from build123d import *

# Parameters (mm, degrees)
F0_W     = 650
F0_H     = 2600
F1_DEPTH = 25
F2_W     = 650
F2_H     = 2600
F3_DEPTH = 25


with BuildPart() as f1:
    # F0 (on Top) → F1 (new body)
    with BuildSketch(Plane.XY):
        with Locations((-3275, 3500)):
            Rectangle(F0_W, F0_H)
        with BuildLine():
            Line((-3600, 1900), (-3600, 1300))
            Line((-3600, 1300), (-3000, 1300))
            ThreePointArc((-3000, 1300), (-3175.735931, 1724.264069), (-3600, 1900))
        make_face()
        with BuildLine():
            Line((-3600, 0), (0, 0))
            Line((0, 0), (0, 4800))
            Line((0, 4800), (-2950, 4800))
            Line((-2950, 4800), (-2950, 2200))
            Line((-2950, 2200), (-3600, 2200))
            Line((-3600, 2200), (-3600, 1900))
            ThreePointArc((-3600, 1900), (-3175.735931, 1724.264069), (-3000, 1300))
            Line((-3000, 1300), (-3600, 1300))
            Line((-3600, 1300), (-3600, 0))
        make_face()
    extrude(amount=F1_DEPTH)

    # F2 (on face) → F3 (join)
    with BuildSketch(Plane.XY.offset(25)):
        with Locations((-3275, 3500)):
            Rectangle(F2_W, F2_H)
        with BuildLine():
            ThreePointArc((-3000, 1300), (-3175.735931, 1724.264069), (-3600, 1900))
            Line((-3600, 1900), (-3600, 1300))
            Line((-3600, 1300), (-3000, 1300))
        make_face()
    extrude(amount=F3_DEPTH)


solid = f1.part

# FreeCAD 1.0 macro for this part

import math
import FreeCAD as App
import Part
import Sketcher

doc = App.newDocument("Part")
body = doc.addObject("PartDesign::Body", "Body")

sketch1 = body.newObject("Sketcher::SketchObject", "Sketch")
sketch1.AttachmentSupport = (doc.getObject("XY_Plane"), [""])
sketch1.MapMode = "FlatFace"
sketch1.addGeometry([
    Part.LineSegment(App.Vector(-3600, 4800, 0), App.Vector(-3600, 0, 0)),
    Part.LineSegment(App.Vector(-3600, 0, 0), App.Vector(0, 0, 0)),
    Part.LineSegment(App.Vector(0, 0, 0), App.Vector(0, 4800, 0)),
    Part.LineSegment(App.Vector(0, 4800, 0), App.Vector(-3600, 4800, 0)),
], False)
sketch1.addConstraint([
    Sketcher.Constraint("Coincident", 0, 2, 1, 1),
    Sketcher.Constraint("Coincident", 1, 2, 2, 1),
    Sketcher.Constraint("Coincident", 2, 2, 3, 1),
    Sketcher.Constraint("Coincident", 3, 2, 0, 1),
    Sketcher.Constraint("Vertical", 0),
    Sketcher.Constraint("Horizontal", 1),
    Sketcher.Constraint("Vertical", 2),
    Sketcher.Constraint("Horizontal", 3),
    Sketcher.Constraint("Coincident", 1, 2, -1, 1),
    Sketcher.Constraint("DistanceX", 1, 1, 1, 2, 3600.0),
    Sketcher.Constraint("DistanceY", 0, 2, 0, 1, 4800.0),
])
pad1 = body.newObject("PartDesign::Pad", "Pad")
pad1.Profile = sketch1
pad1.Length = 25

sketch2 = body.newObject("Sketcher::SketchObject", "Sketch001")
sketch2.AttachmentSupport = (doc.getObject("XY_Plane"), [""])
sketch2.MapMode = "FlatFace"
sketch2.AttachmentOffset = App.Placement(App.Vector(0, 0, 25), App.Rotation())
sketch2.addGeometry([
    Part.LineSegment(App.Vector(-3600, 4800, 0), App.Vector(-3600, 2200, 0)),
    Part.LineSegment(App.Vector(-3600, 2200, 0), App.Vector(-2950, 2200, 0)),
    Part.LineSegment(App.Vector(-2950, 2200, 0), App.Vector(-2950, 4800, 0)),
    Part.LineSegment(App.Vector(-2950, 4800, 0), App.Vector(-3600, 4800, 0)),
    Part.ArcOfCircle(Part.Circle(App.Vector(-3600, 1300, 0), App.Vector(0, 0, 1), 600), math.radians(0), math.radians(90)),
    Part.LineSegment(App.Vector(-3600, 1900, 0), App.Vector(-3600, 1300, 0)),
    Part.LineSegment(App.Vector(-3600, 1300, 0), App.Vector(-3000, 1300, 0)),
], False)
sketch2.addConstraint([
    Sketcher.Constraint("Coincident", 0, 2, 1, 1),
    Sketcher.Constraint("Coincident", 1, 2, 2, 1),
    Sketcher.Constraint("Coincident", 2, 2, 3, 1),
    Sketcher.Constraint("Coincident", 3, 2, 0, 1),
    Sketcher.Constraint("Coincident", 4, 2, 5, 1),
    Sketcher.Constraint("Coincident", 5, 2, 6, 1),
    Sketcher.Constraint("Coincident", 6, 2, 4, 1),
    Sketcher.Constraint("Vertical", 0),
    Sketcher.Constraint("Horizontal", 1),
    Sketcher.Constraint("Vertical", 2),
    Sketcher.Constraint("Horizontal", 3),
    Sketcher.Constraint("Vertical", 5),
    Sketcher.Constraint("Horizontal", 6),
    Sketcher.Constraint("Coincident", 5, 2, 4, 3),
    Sketcher.Constraint("Vertical", 4, 3, 0, 2),
    Sketcher.Constraint("Radius", 4, 599.999999),
    Sketcher.Constraint("DistanceX", 1, 1, 1, 2, 650.0),
    Sketcher.Constraint("DistanceY", 0, 2, 0, 1, 2600.0),
    Sketcher.Constraint("DistanceX", 4, 3, -1, 1, 3599.999999),
    Sketcher.Constraint("DistanceY", -1, 1, 4, 3, 1300.000001),
    Sketcher.Constraint("DistanceY", -1, 1, 0, 2, 2200.0),
])
pad2 = body.newObject("PartDesign::Pad", "Pad001")
pad2.Profile = sketch2
pad2.Length = 25

doc.recompute()
